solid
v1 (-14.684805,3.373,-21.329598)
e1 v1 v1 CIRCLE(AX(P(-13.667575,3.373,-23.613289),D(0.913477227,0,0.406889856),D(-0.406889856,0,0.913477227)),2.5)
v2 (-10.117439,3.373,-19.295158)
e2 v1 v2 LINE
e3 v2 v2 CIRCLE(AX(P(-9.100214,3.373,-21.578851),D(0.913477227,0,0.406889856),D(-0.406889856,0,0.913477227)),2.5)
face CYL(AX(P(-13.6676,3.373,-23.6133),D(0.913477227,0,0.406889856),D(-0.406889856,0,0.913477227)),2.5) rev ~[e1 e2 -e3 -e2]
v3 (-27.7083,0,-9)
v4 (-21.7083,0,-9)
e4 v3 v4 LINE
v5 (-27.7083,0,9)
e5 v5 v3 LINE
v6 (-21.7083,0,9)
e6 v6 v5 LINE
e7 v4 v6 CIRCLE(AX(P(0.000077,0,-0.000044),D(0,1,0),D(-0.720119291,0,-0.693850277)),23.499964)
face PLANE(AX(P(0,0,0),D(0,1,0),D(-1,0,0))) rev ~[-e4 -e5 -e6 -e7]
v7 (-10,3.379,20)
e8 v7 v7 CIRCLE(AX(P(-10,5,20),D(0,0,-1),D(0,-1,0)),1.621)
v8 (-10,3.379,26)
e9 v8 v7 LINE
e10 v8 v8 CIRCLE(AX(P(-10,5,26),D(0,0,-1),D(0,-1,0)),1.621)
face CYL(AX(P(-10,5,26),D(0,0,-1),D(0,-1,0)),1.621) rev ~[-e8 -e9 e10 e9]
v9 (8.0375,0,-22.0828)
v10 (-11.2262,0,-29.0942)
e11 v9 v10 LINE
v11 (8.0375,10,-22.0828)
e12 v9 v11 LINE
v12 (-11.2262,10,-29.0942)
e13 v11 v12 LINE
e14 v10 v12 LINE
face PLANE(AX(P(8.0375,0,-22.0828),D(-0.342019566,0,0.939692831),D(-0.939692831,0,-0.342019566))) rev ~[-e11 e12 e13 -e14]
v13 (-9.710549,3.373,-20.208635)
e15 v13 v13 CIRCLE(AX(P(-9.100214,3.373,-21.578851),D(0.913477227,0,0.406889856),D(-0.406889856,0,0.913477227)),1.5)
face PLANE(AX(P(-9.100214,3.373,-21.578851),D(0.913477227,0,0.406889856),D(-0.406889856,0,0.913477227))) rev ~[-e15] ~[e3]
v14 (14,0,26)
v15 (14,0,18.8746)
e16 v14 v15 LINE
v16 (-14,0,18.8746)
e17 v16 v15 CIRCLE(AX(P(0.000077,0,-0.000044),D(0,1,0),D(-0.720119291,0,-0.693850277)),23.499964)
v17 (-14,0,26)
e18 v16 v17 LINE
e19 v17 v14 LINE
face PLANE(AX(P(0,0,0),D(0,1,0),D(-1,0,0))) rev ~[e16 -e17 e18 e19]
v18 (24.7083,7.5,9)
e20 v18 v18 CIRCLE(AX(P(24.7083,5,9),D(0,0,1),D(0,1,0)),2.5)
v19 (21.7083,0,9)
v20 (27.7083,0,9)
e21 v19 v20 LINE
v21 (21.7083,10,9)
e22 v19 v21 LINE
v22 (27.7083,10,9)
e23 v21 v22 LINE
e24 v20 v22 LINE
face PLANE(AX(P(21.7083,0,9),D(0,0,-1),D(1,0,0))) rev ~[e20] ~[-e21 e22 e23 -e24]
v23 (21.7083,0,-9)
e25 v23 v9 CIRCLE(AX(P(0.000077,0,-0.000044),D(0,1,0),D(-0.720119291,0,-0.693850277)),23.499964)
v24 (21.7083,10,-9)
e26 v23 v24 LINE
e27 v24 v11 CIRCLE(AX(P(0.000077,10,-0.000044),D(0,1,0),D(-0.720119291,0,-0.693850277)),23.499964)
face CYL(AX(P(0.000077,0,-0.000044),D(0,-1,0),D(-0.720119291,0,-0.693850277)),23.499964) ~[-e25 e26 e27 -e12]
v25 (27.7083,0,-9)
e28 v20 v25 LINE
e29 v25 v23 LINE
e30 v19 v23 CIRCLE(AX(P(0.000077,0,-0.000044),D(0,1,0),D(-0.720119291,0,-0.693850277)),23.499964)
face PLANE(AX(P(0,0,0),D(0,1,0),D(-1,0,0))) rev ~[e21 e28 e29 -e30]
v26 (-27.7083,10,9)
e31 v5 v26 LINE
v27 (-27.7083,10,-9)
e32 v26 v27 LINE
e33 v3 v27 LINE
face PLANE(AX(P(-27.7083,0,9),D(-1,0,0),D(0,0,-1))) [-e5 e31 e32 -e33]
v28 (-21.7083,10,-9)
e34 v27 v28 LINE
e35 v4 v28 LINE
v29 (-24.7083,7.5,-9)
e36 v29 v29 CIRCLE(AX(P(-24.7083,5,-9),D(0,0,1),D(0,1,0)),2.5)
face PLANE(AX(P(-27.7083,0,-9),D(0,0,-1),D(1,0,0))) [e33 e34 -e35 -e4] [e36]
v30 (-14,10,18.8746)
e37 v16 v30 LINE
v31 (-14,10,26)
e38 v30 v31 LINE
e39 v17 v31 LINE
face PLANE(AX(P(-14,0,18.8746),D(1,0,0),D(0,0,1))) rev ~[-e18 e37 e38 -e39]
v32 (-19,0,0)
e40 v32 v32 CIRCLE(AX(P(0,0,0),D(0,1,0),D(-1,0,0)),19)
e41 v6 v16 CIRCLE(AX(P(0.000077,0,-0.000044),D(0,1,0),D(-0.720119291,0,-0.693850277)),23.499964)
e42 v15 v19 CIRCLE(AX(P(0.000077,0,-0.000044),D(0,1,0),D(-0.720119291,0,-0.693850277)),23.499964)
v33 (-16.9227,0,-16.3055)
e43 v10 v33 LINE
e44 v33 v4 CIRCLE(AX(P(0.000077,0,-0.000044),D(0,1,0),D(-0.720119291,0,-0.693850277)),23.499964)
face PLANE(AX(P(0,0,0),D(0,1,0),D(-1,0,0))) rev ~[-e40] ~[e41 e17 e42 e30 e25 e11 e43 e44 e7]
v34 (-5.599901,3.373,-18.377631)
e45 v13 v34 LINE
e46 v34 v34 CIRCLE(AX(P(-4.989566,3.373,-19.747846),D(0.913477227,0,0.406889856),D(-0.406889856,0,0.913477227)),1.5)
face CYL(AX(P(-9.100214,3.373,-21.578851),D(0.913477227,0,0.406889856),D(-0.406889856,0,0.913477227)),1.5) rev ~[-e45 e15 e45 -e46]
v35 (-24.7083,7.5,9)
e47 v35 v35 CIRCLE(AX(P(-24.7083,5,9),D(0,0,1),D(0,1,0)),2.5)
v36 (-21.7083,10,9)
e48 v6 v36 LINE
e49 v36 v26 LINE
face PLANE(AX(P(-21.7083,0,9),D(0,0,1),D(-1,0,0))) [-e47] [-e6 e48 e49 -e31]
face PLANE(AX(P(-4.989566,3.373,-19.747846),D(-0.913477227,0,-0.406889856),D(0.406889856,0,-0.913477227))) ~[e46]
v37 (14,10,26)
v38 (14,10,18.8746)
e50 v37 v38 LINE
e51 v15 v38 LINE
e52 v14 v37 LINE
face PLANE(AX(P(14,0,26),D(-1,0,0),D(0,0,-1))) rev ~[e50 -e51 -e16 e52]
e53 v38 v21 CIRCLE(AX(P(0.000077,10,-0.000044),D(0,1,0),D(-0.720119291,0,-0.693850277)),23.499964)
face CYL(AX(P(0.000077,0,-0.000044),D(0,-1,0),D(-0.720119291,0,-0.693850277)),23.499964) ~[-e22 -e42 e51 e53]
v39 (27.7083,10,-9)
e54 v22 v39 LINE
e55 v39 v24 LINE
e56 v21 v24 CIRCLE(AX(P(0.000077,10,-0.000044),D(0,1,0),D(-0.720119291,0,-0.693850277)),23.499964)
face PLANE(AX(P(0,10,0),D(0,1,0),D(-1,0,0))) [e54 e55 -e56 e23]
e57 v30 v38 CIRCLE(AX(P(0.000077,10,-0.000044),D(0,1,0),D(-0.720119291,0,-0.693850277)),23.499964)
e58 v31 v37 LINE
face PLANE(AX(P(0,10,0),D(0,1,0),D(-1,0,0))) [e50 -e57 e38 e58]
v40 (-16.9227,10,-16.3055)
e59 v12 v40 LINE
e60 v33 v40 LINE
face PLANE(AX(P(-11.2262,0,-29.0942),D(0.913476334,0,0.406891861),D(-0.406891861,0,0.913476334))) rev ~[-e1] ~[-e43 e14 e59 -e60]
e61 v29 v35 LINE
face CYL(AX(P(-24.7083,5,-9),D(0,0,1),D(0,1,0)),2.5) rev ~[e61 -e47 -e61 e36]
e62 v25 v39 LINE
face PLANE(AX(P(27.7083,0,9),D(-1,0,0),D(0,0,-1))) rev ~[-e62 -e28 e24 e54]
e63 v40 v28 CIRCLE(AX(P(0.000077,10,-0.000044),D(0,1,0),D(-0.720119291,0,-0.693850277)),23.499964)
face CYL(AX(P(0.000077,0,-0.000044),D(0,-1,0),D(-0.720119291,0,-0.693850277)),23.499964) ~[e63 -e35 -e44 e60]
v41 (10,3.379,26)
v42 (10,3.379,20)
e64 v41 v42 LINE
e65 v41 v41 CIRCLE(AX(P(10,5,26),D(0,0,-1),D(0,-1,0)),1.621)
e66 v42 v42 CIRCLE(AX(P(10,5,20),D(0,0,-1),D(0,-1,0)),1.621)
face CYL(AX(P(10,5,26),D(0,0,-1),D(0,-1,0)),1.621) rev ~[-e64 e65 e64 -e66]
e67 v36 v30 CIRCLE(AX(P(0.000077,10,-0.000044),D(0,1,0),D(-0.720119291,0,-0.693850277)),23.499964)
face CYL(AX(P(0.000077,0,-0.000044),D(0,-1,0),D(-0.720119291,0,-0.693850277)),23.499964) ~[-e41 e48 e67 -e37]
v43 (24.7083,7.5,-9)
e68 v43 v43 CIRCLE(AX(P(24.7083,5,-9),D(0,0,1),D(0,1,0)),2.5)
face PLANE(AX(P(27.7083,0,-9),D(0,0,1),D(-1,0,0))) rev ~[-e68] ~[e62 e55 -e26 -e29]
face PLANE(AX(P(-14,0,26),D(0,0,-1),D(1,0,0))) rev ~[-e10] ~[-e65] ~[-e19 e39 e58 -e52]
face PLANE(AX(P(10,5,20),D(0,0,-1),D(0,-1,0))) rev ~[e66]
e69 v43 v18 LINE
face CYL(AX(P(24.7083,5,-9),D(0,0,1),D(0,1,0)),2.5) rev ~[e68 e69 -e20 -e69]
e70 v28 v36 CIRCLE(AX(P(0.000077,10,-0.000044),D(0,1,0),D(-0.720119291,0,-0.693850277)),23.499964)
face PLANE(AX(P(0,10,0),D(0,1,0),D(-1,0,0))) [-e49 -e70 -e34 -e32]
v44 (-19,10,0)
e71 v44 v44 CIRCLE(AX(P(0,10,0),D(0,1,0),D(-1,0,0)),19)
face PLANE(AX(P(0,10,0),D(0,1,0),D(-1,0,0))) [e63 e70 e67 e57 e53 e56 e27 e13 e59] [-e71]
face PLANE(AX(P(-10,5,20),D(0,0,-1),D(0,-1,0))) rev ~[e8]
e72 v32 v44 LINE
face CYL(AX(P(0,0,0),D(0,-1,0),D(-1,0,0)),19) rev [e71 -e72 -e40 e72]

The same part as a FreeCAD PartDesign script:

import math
import FreeCAD as App
import Part
import Sketcher
Q = App.Units.Quantity

doc = App.newDocument("Part")
body = doc.addObject("PartDesign::Body", "Body")

# Sketch on XZ plane
sketch1 = body.newObject("Sketcher::SketchObject", "Sketch")
sketch1.AttachmentSupport = (doc.getObject("XZ_Plane"), [""])
sketch1.MapMode = "FlatFace"
sketch1.addGeometry(Part.LineSegment(App.Vector(-11.2262, -29.0942, 0), App.Vector(-16.9227, -16.3055, 0)), False)
sketch1.addGeometry(Part.ArcOfCircle(Part.Circle(App.Vector(0, 0, 0), App.Vector(0, 0, 1), 23.499938), math.radians(-157.481692), math.radians(-136.064123)), False)
sketch1.addGeometry(Part.LineSegment(App.Vector(-21.7083, -9, 0), App.Vector(-27.7083, -9, 0)), False)
sketch1.addGeometry(Part.LineSegment(App.Vector(-27.7083, -9, 0), App.Vector(-27.7083, 9, 0)), False)
sketch1.addGeometry(Part.LineSegment(App.Vector(-27.7083, 9, 0), App.Vector(-21.7083, 9, 0)), False)
sketch1.addGeometry(Part.ArcOfCircle(Part.Circle(App.Vector(0, 0, 0), App.Vector(0, 0, 1), 23.499938), math.radians(126.565717), math.radians(157.481692)), False)
sketch1.addGeometry(Part.LineSegment(App.Vector(-14, 18.8746, 0), App.Vector(-14, 26, 0)), False)
sketch1.addGeometry(Part.LineSegment(App.Vector(-14, 26, 0), App.Vector(14, 26, 0)), False)
sketch1.addGeometry(Part.LineSegment(App.Vector(14, 26, 0), App.Vector(14, 18.8746, 0)), False)
sketch1.addGeometry(Part.ArcOfCircle(Part.Circle(App.Vector(0, 0, 0), App.Vector(0, 0, 1), 23.499938), math.radians(22.518308), math.radians(53.434283)), False)
sketch1.addGeometry(Part.LineSegment(App.Vector(21.7083, 9, 0), App.Vector(27.7083, 9, 0)), False)
sketch1.addGeometry(Part.LineSegment(App.Vector(27.7083, 9, 0), App.Vector(27.7083, -9, 0)), False)
sketch1.addGeometry(Part.LineSegment(App.Vector(27.7083, -9, 0), App.Vector(21.7083, -9, 0)), False)
sketch1.addGeometry(Part.ArcOfCircle(Part.Circle(App.Vector(0, 0, 0), App.Vector(0, 0, 1), 23.499938), math.radians(-69.999959), math.radians(-22.518308)), False)
sketch1.addGeometry(Part.LineSegment(App.Vector(8.0375, -22.0828, 0), App.Vector(-11.2262, -29.0942, 0)), False)
sketch1.addGeometry(Part.Circle(App.Vector(0, 0, 0), App.Vector(0, 0, 1), 19), False)
sketch1.addConstraint(Sketcher.Constraint("Coincident", 0, 2, 1, 2))
sketch1.addConstraint(Sketcher.Constraint("Coincident", 1, 1, 2, 1))
sketch1.addConstraint(Sketcher.Constraint("Coincident", 2, 2, 3, 1))
sketch1.addConstraint(Sketcher.Constraint("Coincident", 3, 2, 4, 1))
sketch1.addConstraint(Sketcher.Constraint("Coincident", 4, 2, 5, 2))
sketch1.addConstraint(Sketcher.Constraint("Coincident", 5, 1, 6, 1))
sketch1.addConstraint(Sketcher.Constraint("Coincident", 6, 2, 7, 1))
sketch1.addConstraint(Sketcher.Constraint("Coincident", 7, 2, 8, 1))
sketch1.addConstraint(Sketcher.Constraint("Coincident", 8, 2, 9, 2))
sketch1.addConstraint(Sketcher.Constraint("Coincident", 9, 1, 10, 1))
sketch1.addConstraint(Sketcher.Constraint("Coincident", 10, 2, 11, 1))
sketch1.addConstraint(Sketcher.Constraint("Coincident", 11, 2, 12, 1))
sketch1.addConstraint(Sketcher.Constraint("Coincident", 12, 2, 13, 2))
sketch1.addConstraint(Sketcher.Constraint("Tangent", 13, 1, 14, 1))
sketch1.addConstraint(Sketcher.Constraint("Coincident", 14, 2, 0, 1))
sketch1.addConstraint(Sketcher.Constraint("Horizontal", 2))
sketch1.addConstraint(Sketcher.Constraint("Vertical", 3))
sketch1.addConstraint(Sketcher.Constraint("Horizontal", 4))
sketch1.addConstraint(Sketcher.Constraint("Vertical", 6))
sketch1.addConstraint(Sketcher.Constraint("Horizontal", 7))
sketch1.addConstraint(Sketcher.Constraint("Vertical", 8))
sketch1.addConstraint(Sketcher.Constraint("Horizontal", 10))
sketch1.addConstraint(Sketcher.Constraint("Vertical", 11))
sketch1.addConstraint(Sketcher.Constraint("Horizontal", 12))
sketch1.addConstraint(Sketcher.Constraint("Coincident", 1, 3, -1, 1))
sketch1.addConstraint(Sketcher.Constraint("Coincident", 5, 3, -1, 1))
sketch1.addConstraint(Sketcher.Constraint("Coincident", 9, 3, -1, 1))
sketch1.addConstraint(Sketcher.Constraint("Coincident", 13, 3, -1, 1))
sketch1.addConstraint(Sketcher.Constraint("Coincident", 15, 3, -1, 1))
sketch1.addConstraint(Sketcher.Constraint("Equal", 1, 5))
sketch1.addConstraint(Sketcher.Constraint("Equal", 5, 9))
sketch1.addConstraint(Sketcher.Constraint("Equal", 9, 13))
sketch1.addConstraint(Sketcher.Constraint("Symmetric", 2, 2, 10, 2, -1, 1))
sketch1.addConstraint(Sketcher.Constraint("Horizontal", 5, 1, 8, 2))
sketch1.addConstraint(Sketcher.Constraint("Horizontal", 4, 2, 9, 1))
sketch1.addConstraint(Sketcher.Constraint("Horizontal", 2, 2, 11, 2))
sketch1.addConstraint(Sketcher.Constraint("Diameter", 15, 38.0))
sketch1.addConstraint(Sketcher.Constraint("Radius", 1, 23.5))
sketch1.addConstraint(Sketcher.Constraint("DistanceX", 2, 2, 2, 1, 6.0))
sketch1.addConstraint(Sketcher.Constraint("DistanceX", 7, 1, 7, 2, 28.0))
sketch1.addConstraint(Sketcher.Constraint("DistanceY", 3, 1, 3, 2, 18.0))
sketch1.addConstraint(Sketcher.Constraint("Distance", 0, 14.0))
sketch1.addConstraint(Sketcher.Constraint("DistanceY", 4, 2, 6, 2, 17.0))
sketch1.addConstraint(Sketcher.Constraint("Distance", 14, 20.5))
sketch1.addConstraint(Sketcher.Constraint("Angle", 14, Q("-160 deg")))
pad1 = body.newObject("PartDesign::Pad", "Pad")
pad1.Profile = sketch1
pad1.Length = 10
pad1.Reversed = True

# Sketch on an angled plane
sketch2 = body.newObject("Sketcher::SketchObject", "Sketch001")
sketch2.Placement = App.Placement(App.Vector(-20.181501, 0, -8.989439), App.Rotation(App.Vector(-0.406889856, 0, 0.913477227), App.Vector(0, 0.999999999, 0), App.Vector(-0.913477227, 0, -0.406889856), "ZXY"))
sketch2.addGeometry(Part.Circle(App.Vector(-16.009004, 3.373, 0), App.Vector(0, 0, 1), 1.5), False)
sketch2.addConstraint(Sketcher.Constraint("Diameter", 0, 3.0))
sketch2.addConstraint(Sketcher.Constraint("DistanceX", 0, 3, -1, 1, 16.009))
sketch2.addConstraint(Sketcher.Constraint("DistanceY", -1, 1, 0, 3, 3.373))
doc.recompute()
hole = body.newObject("PartDesign::Hole", "Hole")
hole.Profile = sketch2
hole.ThreadType = "None"
hole.Diameter = 3
hole.DepthType = "Dimension"
hole.Depth = 9.5
hole.DrillPoint = "Flat"
hole.HoleCutType = "Counterbore"
hole.HoleCutDiameter = 5
hole.HoleCutDepth = 5

# Sketch on XY plane
sketch3 = body.newObject("Sketcher::SketchObject", "Sketch002")
sketch3.AttachmentSupport = (doc.getObject("XY_Plane"), [""])
sketch3.MapMode = "FlatFace"
sketch3.AttachmentOffset = App.Placement(App.Vector(0, 0, -9), App.Rotation())
sketch3.addGeometry(Part.Circle(App.Vector(-24.7083, 5, 0), App.Vector(0, 0, 1), 2.5), False)
sketch3.addConstraint(Sketcher.Constraint("Diameter", 0, 5.0))
sketch3.addConstraint(Sketcher.Constraint("DistanceY", -1, 1, 0, 3, 5.0))
sketch3.addConstraint(Sketcher.Constraint("DistanceX", 0, 3, -1, 1, 24.7083))
doc.recompute()
hole2 = body.newObject("PartDesign::Hole", "Hole001")
hole2.Profile = sketch3
hole2.ThreadType = "None"
hole2.Diameter = 5
hole2.DepthType = "ThroughAll"
hole2.Reversed = True

# Sketch on XY plane
sketch4 = body.newObject("Sketcher::SketchObject", "Sketch003")
sketch4.AttachmentSupport = (doc.getObject("XY_Plane"), [""])
sketch4.MapMode = "FlatFace"
sketch4.AttachmentOffset = App.Placement(App.Vector(0, 0, -9), App.Rotation())
sketch4.addGeometry(Part.Circle(App.Vector(24.7083, 5, 0), App.Vector(0, 0, 1), 2.5), False)
sketch4.addConstraint(Sketcher.Constraint("Diameter", 0, 5.0))
sketch4.addConstraint(Sketcher.Constraint("DistanceY", -1, 1, 0, 3, 5.0))
sketch4.addConstraint(Sketcher.Constraint("DistanceX", -1, 1, 0, 3, 24.7083))
doc.recompute()
hole3 = body.newObject("PartDesign::Hole", "Hole002")
hole3.Profile = sketch4
hole3.ThreadType = "None"
hole3.Diameter = 5
hole3.DepthType = "ThroughAll"
hole3.Reversed = True

# Sketch on XY plane
sketch5 = body.newObject("Sketcher::SketchObject", "Sketch004")
sketch5.AttachmentSupport = (doc.getObject("XY_Plane"), [""])
sketch5.MapMode = "FlatFace"
sketch5.AttachmentOffset = App.Placement(App.Vector(0, 0, 26), App.Rotation())
sketch5.addGeometry(Part.Circle(App.Vector(-10, 5, 0), App.Vector(0, 0, 1), 1.621), False)
sketch5.addGeometry(Part.Circle(App.Vector(10, 5, 0), App.Vector(0, 0, 1), 1.621), False)
sketch5.addConstraint(Sketcher.Constraint("Equal", 0, 1))
sketch5.addConstraint(Sketcher.Constraint("Symmetric", 0, 3, 1, 3, -2))
sketch5.addConstraint(Sketcher.Constraint("Diameter", 0, 3.242))
sketch5.addConstraint(Sketcher.Constraint("DistanceX", 0, 3, -1, 1, 10.0))
sketch5.addConstraint(Sketcher.Constraint("DistanceY", -1, 1, 0, 3, 5.0))
doc.recompute()
hole4 = body.newObject("PartDesign::Hole", "Hole003")
hole4.Profile = sketch5
hole4.ThreadType = "None"
hole4.Diameter = 3.242
hole4.DepthType = "Dimension"
hole4.Depth = 6
hole4.DrillPoint = "Flat"

doc.recompute()
